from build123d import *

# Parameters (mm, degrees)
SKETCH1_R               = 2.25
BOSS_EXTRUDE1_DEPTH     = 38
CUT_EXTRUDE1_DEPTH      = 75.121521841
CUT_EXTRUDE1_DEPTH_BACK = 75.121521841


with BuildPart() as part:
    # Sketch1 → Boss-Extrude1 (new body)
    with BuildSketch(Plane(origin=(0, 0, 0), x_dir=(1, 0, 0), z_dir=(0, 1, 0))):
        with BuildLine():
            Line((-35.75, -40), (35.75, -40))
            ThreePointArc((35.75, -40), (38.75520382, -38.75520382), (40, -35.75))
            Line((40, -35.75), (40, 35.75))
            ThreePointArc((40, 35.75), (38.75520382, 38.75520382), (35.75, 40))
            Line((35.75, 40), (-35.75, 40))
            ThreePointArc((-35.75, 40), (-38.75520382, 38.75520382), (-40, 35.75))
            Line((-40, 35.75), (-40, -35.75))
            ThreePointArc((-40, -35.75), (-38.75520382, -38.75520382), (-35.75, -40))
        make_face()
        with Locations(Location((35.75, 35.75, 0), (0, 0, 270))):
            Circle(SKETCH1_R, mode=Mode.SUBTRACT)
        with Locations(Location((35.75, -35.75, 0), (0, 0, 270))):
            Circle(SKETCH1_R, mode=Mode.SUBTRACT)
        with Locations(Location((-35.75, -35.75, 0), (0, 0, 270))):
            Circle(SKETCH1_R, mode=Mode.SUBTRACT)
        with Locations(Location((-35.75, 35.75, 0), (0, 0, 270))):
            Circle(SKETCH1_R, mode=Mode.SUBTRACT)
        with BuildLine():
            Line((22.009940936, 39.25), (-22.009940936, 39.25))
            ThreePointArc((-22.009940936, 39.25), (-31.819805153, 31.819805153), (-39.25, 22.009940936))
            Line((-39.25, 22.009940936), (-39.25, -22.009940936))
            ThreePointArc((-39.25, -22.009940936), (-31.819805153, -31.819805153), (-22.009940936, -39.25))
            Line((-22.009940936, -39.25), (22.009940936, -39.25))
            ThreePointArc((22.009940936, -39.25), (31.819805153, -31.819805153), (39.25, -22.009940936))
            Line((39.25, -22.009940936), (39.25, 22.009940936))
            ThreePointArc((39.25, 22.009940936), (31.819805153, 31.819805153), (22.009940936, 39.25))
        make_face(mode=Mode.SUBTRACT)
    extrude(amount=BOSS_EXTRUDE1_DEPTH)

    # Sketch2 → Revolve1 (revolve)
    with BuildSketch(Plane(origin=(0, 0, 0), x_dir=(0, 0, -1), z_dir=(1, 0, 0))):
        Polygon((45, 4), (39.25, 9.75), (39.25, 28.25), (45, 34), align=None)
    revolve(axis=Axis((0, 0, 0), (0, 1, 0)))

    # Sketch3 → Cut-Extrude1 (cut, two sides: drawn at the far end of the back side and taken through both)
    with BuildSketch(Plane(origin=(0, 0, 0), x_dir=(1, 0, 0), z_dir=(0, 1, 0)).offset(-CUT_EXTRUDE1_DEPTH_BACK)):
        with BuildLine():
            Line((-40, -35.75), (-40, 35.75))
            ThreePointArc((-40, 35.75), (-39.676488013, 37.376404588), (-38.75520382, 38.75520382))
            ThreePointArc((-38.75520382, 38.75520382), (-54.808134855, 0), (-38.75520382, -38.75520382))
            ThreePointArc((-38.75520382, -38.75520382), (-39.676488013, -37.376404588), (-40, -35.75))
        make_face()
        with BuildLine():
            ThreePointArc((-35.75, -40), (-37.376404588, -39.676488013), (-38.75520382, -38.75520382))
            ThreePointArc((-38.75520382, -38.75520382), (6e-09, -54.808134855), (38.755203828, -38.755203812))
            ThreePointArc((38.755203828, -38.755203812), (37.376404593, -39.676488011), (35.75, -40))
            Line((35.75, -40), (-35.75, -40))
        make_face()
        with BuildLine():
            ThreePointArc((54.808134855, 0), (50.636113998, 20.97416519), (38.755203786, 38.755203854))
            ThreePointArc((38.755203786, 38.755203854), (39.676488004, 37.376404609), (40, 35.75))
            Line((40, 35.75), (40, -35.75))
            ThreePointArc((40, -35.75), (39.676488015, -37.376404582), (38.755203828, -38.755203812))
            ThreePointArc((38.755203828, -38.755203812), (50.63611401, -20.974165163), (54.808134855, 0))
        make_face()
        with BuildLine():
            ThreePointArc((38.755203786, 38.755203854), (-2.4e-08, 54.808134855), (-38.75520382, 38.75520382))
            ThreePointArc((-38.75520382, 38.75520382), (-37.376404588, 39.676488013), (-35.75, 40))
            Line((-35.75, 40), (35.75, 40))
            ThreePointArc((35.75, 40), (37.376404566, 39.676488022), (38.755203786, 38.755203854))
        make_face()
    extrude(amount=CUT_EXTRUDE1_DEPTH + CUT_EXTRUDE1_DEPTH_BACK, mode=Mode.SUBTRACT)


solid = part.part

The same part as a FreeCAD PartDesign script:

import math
import FreeCAD as App
import Part
import Sketcher
Q = App.Units.Quantity


def add_polygon(sketch, points):
    """Adds a closed chain of lines whose ends are joined by coincident constraints."""
    first, n = sketch.GeometryCount, len(points)
    for a, b in zip(points, points[1:] + points[:1]):
        sketch.addGeometry(Part.LineSegment(App.Vector(*a, 0), App.Vector(*b, 0)), False)
    for i in range(n):
        sketch.addConstraint(Sketcher.Constraint("Coincident", first + i, 2, first + (i + 1) % n, 1))

doc = App.newDocument("Part")
body = doc.addObject("PartDesign::Body", "Body")

sketch1 = body.newObject("Sketcher::SketchObject", "Sketch")
sketch1.AttachmentSupport = (doc.getObject("XZ_Plane"), [""])
sketch1.MapMode = "FlatFace"
sketch1.addGeometry([
    Part.LineSegment(App.Vector(-35.8, 40, 0), App.Vector(35.8, 40, 0)),
    Part.ArcOfCircle(Part.Circle(App.Vector(35.8, 35.8, 0), App.Vector(0, 0, 1), 4.2), math.radians(0), math.radians(90)),
    Part.LineSegment(App.Vector(40, 35.8, 0), App.Vector(40, -35.8, 0)),
    Part.ArcOfCircle(Part.Circle(App.Vector(35.8, -35.8, 0), App.Vector(0, 0, 1), 4.2), math.radians(-90), math.radians(0)),
    Part.LineSegment(App.Vector(35.8, -40, 0), App.Vector(-35.8, -40, 0)),
    Part.ArcOfCircle(Part.Circle(App.Vector(-35.8, -35.8, 0), App.Vector(0, 0, 1), 4.2), math.radians(180), math.radians(270)),
    Part.LineSegment(App.Vector(-40, -35.8, 0), App.Vector(-40, 35.8, 0)),
    Part.ArcOfCircle(Part.Circle(App.Vector(-35.8, 35.8, 0), App.Vector(0, 0, 1), 4.2), math.radians(90), math.radians(180)),
    Part.Circle(App.Vector(-35.8, 35.8, 0), App.Vector(0, 0, 1), 2.2),
    Part.Circle(App.Vector(35.8, 35.8, 0), App.Vector(0, 0, 1), 2.2),
    Part.Circle(App.Vector(-35.8, -35.8, 0), App.Vector(0, 0, 1), 2.2),
    Part.LineSegment(App.Vector(-22, -39.2, 0), App.Vector(22, -39.2, 0)),
    Part.ArcOfCircle(Part.Circle(App.Vector(0, 0, 0), App.Vector(0, 0, 1), 45), math.radians(-61), math.radians(-29)),
    Part.LineSegment(App.Vector(39.2, -22, 0), App.Vector(39.2, 22, 0)),
    Part.ArcOfCircle(Part.Circle(App.Vector(0, 0, 0), App.Vector(0, 0, 1), 45), math.radians(29), math.radians(61)),
    Part.LineSegment(App.Vector(22, 39.2, 0), App.Vector(-22, 39.2, 0)),
    Part.ArcOfCircle(Part.Circle(App.Vector(0, 0, 0), App.Vector(0, 0, 1), 45), math.radians(119), math.radians(151)),
    Part.LineSegment(App.Vector(-39.2, 22, 0), App.Vector(-39.2, -22, 0)),
    Part.ArcOfCircle(Part.Circle(App.Vector(0, 0, 0), App.Vector(0, 0, 1), 45), math.radians(-151), math.radians(-119)),
    Part.Circle(App.Vector(35.8, -35.8, 0), App.Vector(0, 0, 1), 2.2),
], False)
sketch1.addConstraint([
    Sketcher.Constraint("Tangent", 0, 2, 1, 2),
    Sketcher.Constraint("Tangent", 1, 1, 2, 1),
    Sketcher.Constraint("Tangent", 2, 2, 3, 2),
    Sketcher.Constraint("Tangent", 3, 1, 4, 1),
    Sketcher.Constraint("Tangent", 4, 2, 5, 2),
    Sketcher.Constraint("Tangent", 5, 1, 6, 1),
    Sketcher.Constraint("Tangent", 6, 2, 7, 2),
    Sketcher.Constraint("Tangent", 7, 1, 0, 1),
    Sketcher.Constraint("Coincident", 11, 2, 12, 1),
    Sketcher.Constraint("Coincident", 12, 2, 13, 1),
    Sketcher.Constraint("Coincident", 13, 2, 14, 1),
    Sketcher.Constraint("Coincident", 14, 2, 15, 1),
    Sketcher.Constraint("Coincident", 15, 2, 16, 1),
    Sketcher.Constraint("Coincident", 16, 2, 17, 1),
    Sketcher.Constraint("Coincident", 17, 2, 18, 1),
    Sketcher.Constraint("Coincident", 18, 2, 11, 1),
    Sketcher.Constraint("Horizontal", 0),
    Sketcher.Constraint("Vertical", 2),
    Sketcher.Constraint("Horizontal", 4),
    Sketcher.Constraint("Vertical", 6),
    Sketcher.Constraint("Horizontal", 11),
    Sketcher.Constraint("Vertical", 13),
    Sketcher.Constraint("Horizontal", 15),
    Sketcher.Constraint("Vertical", 17),
    Sketcher.Constraint("Coincident", 12, 3, -1, 1),
    Sketcher.Constraint("Coincident", 14, 3, -1, 1),
    Sketcher.Constraint("Coincident", 16, 3, -1, 1),
    Sketcher.Constraint("Coincident", 18, 3, -1, 1),
    Sketcher.Constraint("Coincident", 8, 3, 7, 3),
    Sketcher.Constraint("Coincident", 9, 3, 1, 3),
    Sketcher.Constraint("Coincident", 10, 3, 5, 3),
    Sketcher.Constraint("Coincident", 19, 3, 3, 3),
    Sketcher.Constraint("Equal", 1, 3),
    Sketcher.Constraint("Equal", 3, 5),
    Sketcher.Constraint("Equal", 5, 7),
    Sketcher.Constraint("Equal", 8, 9),
    Sketcher.Constraint("Equal", 9, 10),
    Sketcher.Constraint("Equal", 12, 14),
    Sketcher.Constraint("Equal", 14, 16),
    Sketcher.Constraint("Equal", 16, 18),
    Sketcher.Constraint("Equal", 10, 19),
    Sketcher.Constraint("Symmetric", 1, 3, 5, 3, -1, 1),
    Sketcher.Constraint("Horizontal", 13, 2, 16, 2),
    Sketcher.Constraint("Vertical", 11, 2, 14, 2),
    Sketcher.Constraint("Equal", 4, 2),
    Sketcher.Constraint("Equal", 15, 13),
    Sketcher.Constraint("Radius", 12, Q("45 mm")),
    Sketcher.Constraint("Diameter", 8, Q("4.5 mm")),
    Sketcher.Constraint("Radius", 1, Q("4.25 mm")),
    Sketcher.Constraint("DistanceX", 0, 1, 0, 2, Q("71.5 mm")),
    Sketcher.Constraint("DistanceY", 11, 2, 3, 3, Q("3.5 mm")),
])
pad1 = body.newObject("PartDesign::Pad", "Pad")
pad1.Profile = sketch1
pad1.Length = 38
pad1.Reversed = True

sketch2 = body.newObject("Sketcher::SketchObject", "Sketch001")
sketch2.AttachmentSupport = (doc.getObject("YZ_Plane"), [""])
sketch2.MapMode = "FlatFace"
add_polygon(sketch2, [(10, -39), (4, -45), (34, -45), (28, -39)])
sketch2.addConstraint([
    Sketcher.Constraint("Horizontal", 1),
    Sketcher.Constraint("Horizontal", 3),
    Sketcher.Constraint("Perpendicular", 0, 2),
    Sketcher.Constraint("Equal", 0, 2),
    Sketcher.Constraint("DistanceX", 1, 1, 1, 2, Q("30 mm")),
    Sketcher.Constraint("DistanceX", 3, 2, 3, 1, Q("18.5 mm")),
    Sketcher.Constraint("DistanceX", -1, 1, 0, 2, Q("4 mm")),
    Sketcher.Constraint("DistanceY", 0, 2, -1, 1, Q("45 mm")),
])
revolution = body.newObject("PartDesign::Revolution", "Revolution")
revolution.Profile = sketch2
revolution.ReferenceAxis = (sketch2, ["H_Axis"])
revolution.Angle = 360

sketch3 = body.newObject("Sketcher::SketchObject", "Sketch002")
sketch3.AttachmentSupport = (doc.getObject("XZ_Plane"), [""])
sketch3.MapMode = "FlatFace"
sketch3.addGeometry([
    Part.LineSegment(App.Vector(-40, 35.8, 0), App.Vector(-40, -35.8, 0)),
    Part.ArcOfCircle(Part.Circle(App.Vector(-35.8, -35.8, 0), App.Vector(0, 0, 1), 4.2), math.radians(180), math.radians(225)),
    Part.ArcOfCircle(Part.Circle(App.Vector(0, 0, 0), App.Vector(0, 0, 1), 54.8), math.radians(135), math.radians(225)),
    Part.ArcOfCircle(Part.Circle(App.Vector(-35.8, 35.8, 0), App.Vector(0, 0, 1), 4.2), math.radians(135), math.radians(180)),
    Part.ArcOfCircle(Part.Circle(App.Vector(-35.8, 35.8, 0), App.Vector(0, 0, 1), 4.2), math.radians(90), math.radians(135)),
    Part.ArcOfCircle(Part.Circle(App.Vector(0, 0, 0), App.Vector(0, 0, 1), 54.8), math.radians(45), math.radians(135)),
    Part.ArcOfCircle(Part.Circle(App.Vector(35.8, 35.8, 0), App.Vector(0, 0, 1), 4.2), math.radians(45), math.radians(90)),
    Part.LineSegment(App.Vector(35.8, 40, 0), App.Vector(-35.8, 40, 0)),
    Part.ArcOfCircle(Part.Circle(App.Vector(35.7, -35.7, 0), App.Vector(0, 0, 1), 4.3), math.radians(-45), math.radians(0)),
    Part.LineSegment(App.Vector(40, -35.8, 0), App.Vector(40, 35.8, 0)),
    Part.ArcOfCircle(Part.Circle(App.Vector(35.7, 35.7, 0), App.Vector(0, 0, 1), 4.3), math.radians(0), math.radians(45)),
    Part.ArcOfCircle(Part.Circle(App.Vector(0, 0, 0), App.Vector(0, 0, 1), 54.8), math.radians(-45), math.radians(45)),
    Part.ArcOfCircle(Part.Circle(App.Vector(0, 0, 0), App.Vector(0, 0, 1), 54.8), math.radians(-135), math.radians(-45)),
    Part.ArcOfCircle(Part.Circle(App.Vector(-35.8, -35.8, 0), App.Vector(0, 0, 1), 4.2), math.radians(-135), math.radians(-90)),
    Part.LineSegment(App.Vector(-35.8, -40, 0), App.Vector(35.8, -40, 0)),
    Part.ArcOfCircle(Part.Circle(App.Vector(35.8, -35.7, 0), App.Vector(0, 0, 1), 4.3), math.radians(-90), math.radians(-45)),
], False)
sketch3.addConstraint([
    Sketcher.Constraint("Tangent", 0, 2, 1, 1),
    Sketcher.Constraint("Tangent", 1, 2, 2, 2),
    Sketcher.Constraint("Tangent", 2, 1, 3, 1),
    Sketcher.Constraint("Tangent", 3, 2, 0, 1),
    Sketcher.Constraint("Tangent", 4, 2, 5, 2),
    Sketcher.Constraint("Tangent", 5, 1, 6, 1),
    Sketcher.Constraint("Tangent", 6, 2, 7, 1),
    Sketcher.Constraint("Tangent", 7, 2, 4, 1),
    Sketcher.Constraint("Tangent", 8, 2, 9, 1),
    Sketcher.Constraint("Tangent", 9, 2, 10, 1),
    Sketcher.Constraint("Tangent", 10, 2, 11, 2),
    Sketcher.Constraint("Tangent", 11, 1, 8, 1),
    Sketcher.Constraint("Tangent", 12, 1, 13, 1),
    Sketcher.Constraint("Tangent", 13, 2, 14, 1),
    Sketcher.Constraint("Tangent", 14, 2, 15, 1),
    Sketcher.Constraint("Tangent", 15, 2, 12, 2),
    Sketcher.Constraint("Vertical", 0),
    Sketcher.Constraint("Horizontal", 7),
    Sketcher.Constraint("Vertical", 9),
    Sketcher.Constraint("Horizontal", 14),
    Sketcher.Constraint("Coincident", 2, 3, -1, 1),
    Sketcher.Constraint("Coincident", 5, 3, -1, 1),
    Sketcher.Constraint("Coincident", 11, 3, -1, 1),
    Sketcher.Constraint("Coincident", 12, 3, -1, 1),
    Sketcher.Constraint("Coincident", 4, 3, 3, 3),
    Sketcher.Constraint("Coincident", 10, 3, 6, 3),
    Sketcher.Constraint("Coincident", 13, 3, 1, 3),
    Sketcher.Constraint("Coincident", 15, 3, 8, 3),
    Sketcher.Constraint("Equal", 1, 3),
    Sketcher.Constraint("Equal", 3, 4),
    Sketcher.Constraint("Equal", 4, 6),
    Sketcher.Constraint("Equal", 6, 8),
    Sketcher.Constraint("Equal", 11, 12),
    Sketcher.Constraint("Equal", 14, 0),
    Sketcher.Constraint("Radius", 1, Q("4.25 mm")),
    Sketcher.Constraint("DistanceX", 7, 2, 7, 1, Q("71.5 mm")),
])
pocket1 = body.newObject("PartDesign::Pocket", "Pocket")
pocket1.Profile = sketch3
pocket1.Type = "ThroughAll"
pocket1.Midplane = True

doc.recompute()
